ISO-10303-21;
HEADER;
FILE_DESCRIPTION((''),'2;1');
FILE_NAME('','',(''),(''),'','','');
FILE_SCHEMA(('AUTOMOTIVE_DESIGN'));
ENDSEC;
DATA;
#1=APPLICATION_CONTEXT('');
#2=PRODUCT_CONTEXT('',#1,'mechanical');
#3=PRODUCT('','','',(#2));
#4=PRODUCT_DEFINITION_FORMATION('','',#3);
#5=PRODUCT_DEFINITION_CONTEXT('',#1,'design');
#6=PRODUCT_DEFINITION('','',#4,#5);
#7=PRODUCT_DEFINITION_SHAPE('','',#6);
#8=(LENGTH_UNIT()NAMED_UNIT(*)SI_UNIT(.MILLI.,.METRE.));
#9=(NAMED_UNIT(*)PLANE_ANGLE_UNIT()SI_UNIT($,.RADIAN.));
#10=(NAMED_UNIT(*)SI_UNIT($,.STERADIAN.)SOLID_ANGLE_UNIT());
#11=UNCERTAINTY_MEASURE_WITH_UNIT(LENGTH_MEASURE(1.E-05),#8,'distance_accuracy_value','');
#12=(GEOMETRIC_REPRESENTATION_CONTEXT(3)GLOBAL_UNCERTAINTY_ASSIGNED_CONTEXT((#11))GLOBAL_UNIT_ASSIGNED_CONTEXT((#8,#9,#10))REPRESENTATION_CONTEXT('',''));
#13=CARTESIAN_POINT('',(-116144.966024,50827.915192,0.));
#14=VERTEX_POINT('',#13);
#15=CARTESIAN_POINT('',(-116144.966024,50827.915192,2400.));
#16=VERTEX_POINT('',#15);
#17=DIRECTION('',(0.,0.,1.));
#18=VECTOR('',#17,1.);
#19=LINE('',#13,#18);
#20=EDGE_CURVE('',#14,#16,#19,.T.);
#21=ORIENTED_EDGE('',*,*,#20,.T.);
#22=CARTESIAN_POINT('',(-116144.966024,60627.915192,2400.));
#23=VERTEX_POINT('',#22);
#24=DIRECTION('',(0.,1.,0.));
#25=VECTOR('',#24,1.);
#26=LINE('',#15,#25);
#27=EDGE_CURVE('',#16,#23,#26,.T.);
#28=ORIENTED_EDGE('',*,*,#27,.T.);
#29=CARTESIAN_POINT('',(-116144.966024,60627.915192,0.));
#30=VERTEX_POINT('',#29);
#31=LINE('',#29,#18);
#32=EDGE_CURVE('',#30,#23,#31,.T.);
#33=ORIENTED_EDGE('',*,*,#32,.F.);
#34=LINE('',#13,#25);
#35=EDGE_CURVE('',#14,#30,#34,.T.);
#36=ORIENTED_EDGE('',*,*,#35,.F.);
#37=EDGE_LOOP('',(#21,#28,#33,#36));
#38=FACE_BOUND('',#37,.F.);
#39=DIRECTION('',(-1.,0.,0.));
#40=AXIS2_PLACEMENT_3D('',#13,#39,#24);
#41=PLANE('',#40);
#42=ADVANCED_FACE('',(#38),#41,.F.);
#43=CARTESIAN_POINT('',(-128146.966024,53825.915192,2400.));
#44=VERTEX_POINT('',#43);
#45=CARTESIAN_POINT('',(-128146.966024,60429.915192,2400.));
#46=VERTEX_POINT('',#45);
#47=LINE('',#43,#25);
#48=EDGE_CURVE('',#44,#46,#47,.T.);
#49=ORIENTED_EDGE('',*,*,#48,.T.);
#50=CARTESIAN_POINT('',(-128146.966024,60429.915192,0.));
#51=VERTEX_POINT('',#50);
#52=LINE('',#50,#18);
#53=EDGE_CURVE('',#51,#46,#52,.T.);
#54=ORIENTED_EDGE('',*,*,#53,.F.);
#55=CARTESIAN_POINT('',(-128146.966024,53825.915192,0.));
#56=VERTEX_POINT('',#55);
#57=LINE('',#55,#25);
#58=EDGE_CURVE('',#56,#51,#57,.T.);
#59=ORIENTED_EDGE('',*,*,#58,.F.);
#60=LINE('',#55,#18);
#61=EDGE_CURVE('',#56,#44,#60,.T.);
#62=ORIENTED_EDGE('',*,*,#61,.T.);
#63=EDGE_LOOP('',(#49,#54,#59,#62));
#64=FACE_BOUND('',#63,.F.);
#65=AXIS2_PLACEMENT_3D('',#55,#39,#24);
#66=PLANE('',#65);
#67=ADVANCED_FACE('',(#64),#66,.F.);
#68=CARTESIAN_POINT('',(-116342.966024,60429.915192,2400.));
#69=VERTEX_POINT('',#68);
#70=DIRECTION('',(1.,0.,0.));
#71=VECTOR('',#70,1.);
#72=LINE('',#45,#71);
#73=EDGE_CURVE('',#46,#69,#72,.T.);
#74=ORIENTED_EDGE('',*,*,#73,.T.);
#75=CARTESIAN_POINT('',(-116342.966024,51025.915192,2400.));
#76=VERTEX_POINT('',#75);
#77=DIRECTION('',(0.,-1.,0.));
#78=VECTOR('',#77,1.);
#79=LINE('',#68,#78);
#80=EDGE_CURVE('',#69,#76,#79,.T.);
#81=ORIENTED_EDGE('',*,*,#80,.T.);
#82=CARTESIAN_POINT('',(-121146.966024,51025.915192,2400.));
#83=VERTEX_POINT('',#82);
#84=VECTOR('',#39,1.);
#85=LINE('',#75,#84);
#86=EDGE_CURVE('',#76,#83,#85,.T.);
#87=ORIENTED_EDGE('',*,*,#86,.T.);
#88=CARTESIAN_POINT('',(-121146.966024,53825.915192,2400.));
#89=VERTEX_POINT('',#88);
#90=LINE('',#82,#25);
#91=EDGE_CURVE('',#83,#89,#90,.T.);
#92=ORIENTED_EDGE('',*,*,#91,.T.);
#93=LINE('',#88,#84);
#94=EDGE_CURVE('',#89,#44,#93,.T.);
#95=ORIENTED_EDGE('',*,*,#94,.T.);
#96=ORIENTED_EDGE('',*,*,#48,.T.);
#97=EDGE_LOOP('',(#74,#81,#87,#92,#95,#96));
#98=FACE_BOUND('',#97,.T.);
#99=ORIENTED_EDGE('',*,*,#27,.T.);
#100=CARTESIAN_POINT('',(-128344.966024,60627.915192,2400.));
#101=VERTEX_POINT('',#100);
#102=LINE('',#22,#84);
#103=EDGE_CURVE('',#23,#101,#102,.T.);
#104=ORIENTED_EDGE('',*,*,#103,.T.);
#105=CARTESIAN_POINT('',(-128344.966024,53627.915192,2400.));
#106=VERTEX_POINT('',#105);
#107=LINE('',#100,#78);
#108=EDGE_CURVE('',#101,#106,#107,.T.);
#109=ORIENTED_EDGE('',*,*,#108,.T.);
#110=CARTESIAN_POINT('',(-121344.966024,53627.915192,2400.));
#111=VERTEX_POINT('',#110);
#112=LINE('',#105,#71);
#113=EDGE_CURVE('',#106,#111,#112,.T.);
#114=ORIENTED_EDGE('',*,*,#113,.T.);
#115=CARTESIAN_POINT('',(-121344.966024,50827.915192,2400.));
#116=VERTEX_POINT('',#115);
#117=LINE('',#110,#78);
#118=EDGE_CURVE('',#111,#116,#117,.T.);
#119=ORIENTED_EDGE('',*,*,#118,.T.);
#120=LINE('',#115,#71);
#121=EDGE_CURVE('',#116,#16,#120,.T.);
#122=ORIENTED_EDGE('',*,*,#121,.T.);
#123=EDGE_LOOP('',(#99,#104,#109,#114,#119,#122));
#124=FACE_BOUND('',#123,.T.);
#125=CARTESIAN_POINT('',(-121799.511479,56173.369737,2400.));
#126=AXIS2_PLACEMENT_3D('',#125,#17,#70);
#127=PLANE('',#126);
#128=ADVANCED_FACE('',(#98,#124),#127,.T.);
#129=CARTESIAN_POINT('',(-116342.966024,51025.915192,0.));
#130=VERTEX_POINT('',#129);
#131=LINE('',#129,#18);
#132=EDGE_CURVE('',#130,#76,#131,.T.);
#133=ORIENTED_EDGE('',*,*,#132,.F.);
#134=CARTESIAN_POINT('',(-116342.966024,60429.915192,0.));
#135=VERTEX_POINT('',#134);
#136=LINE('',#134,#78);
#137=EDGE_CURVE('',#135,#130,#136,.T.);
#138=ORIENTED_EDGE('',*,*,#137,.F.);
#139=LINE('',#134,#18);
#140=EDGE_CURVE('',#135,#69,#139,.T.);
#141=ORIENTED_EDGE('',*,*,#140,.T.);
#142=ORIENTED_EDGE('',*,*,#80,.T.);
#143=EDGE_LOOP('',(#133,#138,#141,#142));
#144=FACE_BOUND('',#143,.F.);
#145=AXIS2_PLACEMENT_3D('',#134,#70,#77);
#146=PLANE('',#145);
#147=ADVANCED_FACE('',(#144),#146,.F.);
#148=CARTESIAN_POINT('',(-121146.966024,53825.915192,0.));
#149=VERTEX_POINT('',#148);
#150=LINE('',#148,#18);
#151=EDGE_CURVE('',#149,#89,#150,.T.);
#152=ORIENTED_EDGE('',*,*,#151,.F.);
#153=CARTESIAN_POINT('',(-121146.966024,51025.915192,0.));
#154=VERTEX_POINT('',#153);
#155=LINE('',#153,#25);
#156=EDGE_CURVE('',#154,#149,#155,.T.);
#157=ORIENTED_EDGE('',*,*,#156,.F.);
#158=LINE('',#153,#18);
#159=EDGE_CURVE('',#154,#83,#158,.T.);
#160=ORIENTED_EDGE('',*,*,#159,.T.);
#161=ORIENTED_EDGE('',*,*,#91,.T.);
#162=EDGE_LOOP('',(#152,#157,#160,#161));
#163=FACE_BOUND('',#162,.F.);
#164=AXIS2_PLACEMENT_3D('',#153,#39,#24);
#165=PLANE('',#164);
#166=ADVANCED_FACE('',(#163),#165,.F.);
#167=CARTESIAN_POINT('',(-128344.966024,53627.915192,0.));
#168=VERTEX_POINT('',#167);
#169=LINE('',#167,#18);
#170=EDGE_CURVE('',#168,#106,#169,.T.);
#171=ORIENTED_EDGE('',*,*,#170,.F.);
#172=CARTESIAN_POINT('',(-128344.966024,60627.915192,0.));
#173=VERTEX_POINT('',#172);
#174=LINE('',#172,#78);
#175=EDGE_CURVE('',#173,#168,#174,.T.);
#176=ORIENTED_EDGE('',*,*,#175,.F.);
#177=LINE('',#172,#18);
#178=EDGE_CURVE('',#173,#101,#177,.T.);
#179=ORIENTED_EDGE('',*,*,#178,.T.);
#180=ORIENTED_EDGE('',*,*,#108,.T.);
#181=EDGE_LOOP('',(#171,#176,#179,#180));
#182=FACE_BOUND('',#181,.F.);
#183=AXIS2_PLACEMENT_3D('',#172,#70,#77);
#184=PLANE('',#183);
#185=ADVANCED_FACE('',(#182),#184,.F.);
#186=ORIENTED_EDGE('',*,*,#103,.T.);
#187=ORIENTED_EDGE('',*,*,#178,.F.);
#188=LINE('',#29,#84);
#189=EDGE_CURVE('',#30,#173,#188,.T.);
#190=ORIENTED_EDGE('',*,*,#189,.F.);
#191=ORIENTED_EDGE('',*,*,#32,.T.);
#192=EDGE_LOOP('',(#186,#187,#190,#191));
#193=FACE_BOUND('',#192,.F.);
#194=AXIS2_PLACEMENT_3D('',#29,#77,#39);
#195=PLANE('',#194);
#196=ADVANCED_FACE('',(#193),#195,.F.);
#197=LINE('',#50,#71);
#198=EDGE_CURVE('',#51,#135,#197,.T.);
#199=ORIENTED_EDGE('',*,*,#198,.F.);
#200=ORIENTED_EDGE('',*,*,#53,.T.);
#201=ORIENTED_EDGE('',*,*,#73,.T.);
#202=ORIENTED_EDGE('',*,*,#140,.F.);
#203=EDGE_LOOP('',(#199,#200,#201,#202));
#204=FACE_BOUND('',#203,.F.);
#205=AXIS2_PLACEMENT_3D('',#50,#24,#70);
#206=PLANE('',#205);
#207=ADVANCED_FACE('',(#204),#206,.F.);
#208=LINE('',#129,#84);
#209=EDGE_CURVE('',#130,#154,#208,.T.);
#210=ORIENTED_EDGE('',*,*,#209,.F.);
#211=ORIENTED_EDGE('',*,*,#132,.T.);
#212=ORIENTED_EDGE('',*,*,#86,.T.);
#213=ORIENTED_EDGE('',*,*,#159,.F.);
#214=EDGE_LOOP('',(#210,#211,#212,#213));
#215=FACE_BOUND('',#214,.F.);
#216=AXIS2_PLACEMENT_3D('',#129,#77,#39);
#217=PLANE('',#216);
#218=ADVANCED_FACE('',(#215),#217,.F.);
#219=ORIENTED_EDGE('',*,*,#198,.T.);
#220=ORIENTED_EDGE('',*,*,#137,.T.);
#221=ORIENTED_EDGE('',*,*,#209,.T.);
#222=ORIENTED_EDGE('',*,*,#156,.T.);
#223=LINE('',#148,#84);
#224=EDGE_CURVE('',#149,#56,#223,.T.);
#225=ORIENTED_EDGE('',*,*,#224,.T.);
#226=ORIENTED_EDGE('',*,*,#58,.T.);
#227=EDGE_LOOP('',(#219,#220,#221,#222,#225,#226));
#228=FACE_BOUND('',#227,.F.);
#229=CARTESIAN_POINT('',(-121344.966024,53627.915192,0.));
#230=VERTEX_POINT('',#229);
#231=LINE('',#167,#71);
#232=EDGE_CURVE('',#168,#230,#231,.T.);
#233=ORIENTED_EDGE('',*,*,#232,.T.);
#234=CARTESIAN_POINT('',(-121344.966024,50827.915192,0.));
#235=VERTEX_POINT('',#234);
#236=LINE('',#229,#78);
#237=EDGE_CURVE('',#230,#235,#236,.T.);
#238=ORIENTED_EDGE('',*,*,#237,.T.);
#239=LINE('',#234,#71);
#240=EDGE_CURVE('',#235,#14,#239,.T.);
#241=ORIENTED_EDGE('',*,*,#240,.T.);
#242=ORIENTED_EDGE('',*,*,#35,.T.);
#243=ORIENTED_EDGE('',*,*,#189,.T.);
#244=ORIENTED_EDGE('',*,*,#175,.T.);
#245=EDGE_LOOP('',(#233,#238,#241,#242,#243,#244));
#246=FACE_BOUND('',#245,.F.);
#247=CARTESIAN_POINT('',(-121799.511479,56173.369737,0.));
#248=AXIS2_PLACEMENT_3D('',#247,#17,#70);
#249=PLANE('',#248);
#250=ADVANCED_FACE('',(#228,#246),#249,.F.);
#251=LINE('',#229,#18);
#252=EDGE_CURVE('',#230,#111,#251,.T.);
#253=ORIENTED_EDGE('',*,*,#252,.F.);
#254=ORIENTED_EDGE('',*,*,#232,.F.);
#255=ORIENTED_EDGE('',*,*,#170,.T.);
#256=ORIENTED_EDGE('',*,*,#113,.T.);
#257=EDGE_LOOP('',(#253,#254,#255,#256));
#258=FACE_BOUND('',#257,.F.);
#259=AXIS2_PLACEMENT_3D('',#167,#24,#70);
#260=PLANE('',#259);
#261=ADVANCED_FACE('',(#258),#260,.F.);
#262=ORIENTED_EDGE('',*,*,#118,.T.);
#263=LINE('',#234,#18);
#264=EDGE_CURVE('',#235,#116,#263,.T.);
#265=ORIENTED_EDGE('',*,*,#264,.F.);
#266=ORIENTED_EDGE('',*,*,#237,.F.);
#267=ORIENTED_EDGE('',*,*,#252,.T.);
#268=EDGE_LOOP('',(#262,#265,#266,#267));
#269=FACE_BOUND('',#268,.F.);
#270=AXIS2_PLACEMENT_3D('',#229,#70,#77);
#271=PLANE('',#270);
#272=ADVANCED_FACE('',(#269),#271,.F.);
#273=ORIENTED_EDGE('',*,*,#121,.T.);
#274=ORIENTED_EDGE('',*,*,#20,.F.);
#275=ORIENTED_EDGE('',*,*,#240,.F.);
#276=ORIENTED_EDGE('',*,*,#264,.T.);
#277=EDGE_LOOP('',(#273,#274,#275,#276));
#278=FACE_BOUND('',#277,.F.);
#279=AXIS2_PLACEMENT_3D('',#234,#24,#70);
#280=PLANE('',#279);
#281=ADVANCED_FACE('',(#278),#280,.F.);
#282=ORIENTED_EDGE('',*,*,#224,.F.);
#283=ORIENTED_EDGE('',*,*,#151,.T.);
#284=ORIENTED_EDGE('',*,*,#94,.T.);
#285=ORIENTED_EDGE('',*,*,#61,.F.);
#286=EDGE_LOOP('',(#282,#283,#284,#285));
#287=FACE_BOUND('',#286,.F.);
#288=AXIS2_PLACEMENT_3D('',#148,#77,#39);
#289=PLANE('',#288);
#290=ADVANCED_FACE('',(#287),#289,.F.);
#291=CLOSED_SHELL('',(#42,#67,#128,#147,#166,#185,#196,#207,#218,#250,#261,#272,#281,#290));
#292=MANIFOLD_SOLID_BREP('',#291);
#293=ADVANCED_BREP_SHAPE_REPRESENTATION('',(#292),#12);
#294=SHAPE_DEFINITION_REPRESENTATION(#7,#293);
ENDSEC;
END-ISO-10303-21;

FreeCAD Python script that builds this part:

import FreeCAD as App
import Part
import Sketcher
from FreeCAD import Vector

doc = App.newDocument("Part")
params = doc.addObject("Spreadsheet::Sheet", "Params")
for row, (alias, value) in enumerate([
    ("sketch1_width", "12200 mm"),
    ("sketch1_width2", "7000 mm"),
    ("sketch1_width3", "11804 mm"),
    ("sketch1_height", "2800 mm"),
    ("sketch1_height2", "6604 mm"),
    ("pad1_length", "2400 mm"),
], start=1):
    params.set(f"A{row}", alias)
    params.set(f"B{row}", "=" + value)
    params.setAlias(f"B{row}", alias)

body = doc.addObject("PartDesign::Body", "Body")

sketch1 = doc.addObject("Sketcher::SketchObject", "Sketch")
body.addObject(sketch1)
sketch1.AttachmentSupport = (doc.XY_Plane, [""])
sketch1.MapMode = "FlatFace"
sketch1.addGeometry(Part.LineSegment(Vector(-116144.966024, 60627.915192, 0), Vector(-128344.966024, 60627.915192, 0)), False)
sketch1.addGeometry(Part.LineSegment(Vector(-128344.966024, 60627.915192, 0), Vector(-128344.966024, 53627.915192, 0)), False)
sketch1.addGeometry(Part.LineSegment(Vector(-128344.966024, 53627.915192, 0), Vector(-121344.966024, 53627.915192, 0)), False)
sketch1.addGeometry(Part.LineSegment(Vector(-121344.966024, 53627.915192, 0), Vector(-121344.966024, 50827.915192, 0)), False)
sketch1.addGeometry(Part.LineSegment(Vector(-121344.966024, 50827.915192, 0), Vector(-116144.966024, 50827.915192, 0)), False)
sketch1.addGeometry(Part.LineSegment(Vector(-116144.966024, 50827.915192, 0), Vector(-116144.966024, 60627.915192, 0)), False)
sketch1.addGeometry(Part.LineSegment(Vector(-121146.966024, 51025.915192, 0), Vector(-121146.966024, 53825.915192, 0)), False)
sketch1.addGeometry(Part.LineSegment(Vector(-121146.966024, 53825.915192, 0), Vector(-128146.966024, 53825.915192, 0)), False)
sketch1.addGeometry(Part.LineSegment(Vector(-128146.966024, 53825.915192, 0), Vector(-128146.966024, 60429.915192, 0)), False)
sketch1.addGeometry(Part.LineSegment(Vector(-128146.966024, 60429.915192, 0), Vector(-116342.966024, 60429.915192, 0)), False)
sketch1.addGeometry(Part.LineSegment(Vector(-116342.966024, 60429.915192, 0), Vector(-116342.966024, 51025.915192, 0)), False)
sketch1.addGeometry(Part.LineSegment(Vector(-116342.966024, 51025.915192, 0), Vector(-121146.966024, 51025.915192, 0)), False)
sketch1.addConstraint(Sketcher.Constraint("Coincident", 0, 2, 1, 1))
sketch1.addConstraint(Sketcher.Constraint("Coincident", 1, 2, 2, 1))
sketch1.addConstraint(Sketcher.Constraint("Coincident", 2, 2, 3, 1))
sketch1.addConstraint(Sketcher.Constraint("Coincident", 3, 2, 4, 1))
sketch1.addConstraint(Sketcher.Constraint("Coincident", 4, 2, 5, 1))
sketch1.addConstraint(Sketcher.Constraint("Coincident", 5, 2, 0, 1))
sketch1.addConstraint(Sketcher.Constraint("Coincident", 6, 2, 7, 1))
sketch1.addConstraint(Sketcher.Constraint("Coincident", 7, 2, 8, 1))
sketch1.addConstraint(Sketcher.Constraint("Coincident", 8, 2, 9, 1))
sketch1.addConstraint(Sketcher.Constraint("Coincident", 9, 2, 10, 1))
sketch1.addConstraint(Sketcher.Constraint("Coincident", 10, 2, 11, 1))
sketch1.addConstraint(Sketcher.Constraint("Coincident", 11, 2, 6, 1))
sketch1.addConstraint(Sketcher.Constraint("Horizontal", 0))
sketch1.addConstraint(Sketcher.Constraint("Vertical", 1))
sketch1.addConstraint(Sketcher.Constraint("Horizontal", 2))
sketch1.addConstraint(Sketcher.Constraint("Vertical", 3))
sketch1.addConstraint(Sketcher.Constraint("Horizontal", 4))
sketch1.addConstraint(Sketcher.Constraint("Vertical", 5))
sketch1.addConstraint(Sketcher.Constraint("Vertical", 6))
sketch1.addConstraint(Sketcher.Constraint("Horizontal", 7))
sketch1.addConstraint(Sketcher.Constraint("Vertical", 8))
sketch1.addConstraint(Sketcher.Constraint("Horizontal", 9))
sketch1.addConstraint(Sketcher.Constraint("Vertical", 10))
sketch1.addConstraint(Sketcher.Constraint("Horizontal", 11))
sketch1.addConstraint(Sketcher.Constraint("Equal", 2, 7))
sketch1.addConstraint(Sketcher.Constraint("Equal", 7, 1))
sketch1.addConstraint(Sketcher.Constraint("Equal", 3, 6))
sketch1.addConstraint(Sketcher.Constraint("DistanceX", 0, 2, 0, 1, 12200.0))
sketch1.addConstraint(Sketcher.Constraint("DistanceX", 2, 1, 2, 2, 7000.0))
sketch1.addConstraint(Sketcher.Constraint("DistanceX", 9, 1, 9, 2, 11804.0))
sketch1.addConstraint(Sketcher.Constraint("DistanceY", 3, 2, 3, 1, 2800.0))
sketch1.addConstraint(Sketcher.Constraint("DistanceY", 8, 1, 8, 2, 6604.0))
sketch1.addConstraint(Sketcher.Constraint("DistanceX", 2, 2, 6, 2, 198.0))
sketch1.addConstraint(Sketcher.Constraint("DistanceY", 2, 2, 6, 2, 198.0))
sketch1.addConstraint(Sketcher.Constraint("DistanceX", 0, 2, -1, 1, 128344.966024))
sketch1.addConstraint(Sketcher.Constraint("DistanceY", -1, 1, 0, 2, 60627.915192))
sketch1.setExpression("Constraints[27]", "Params.sketch1_width")
sketch1.setExpression("Constraints[28]", "Params.sketch1_width2")
sketch1.setExpression("Constraints[29]", "Params.sketch1_width3")
sketch1.setExpression("Constraints[30]", "Params.sketch1_height")
sketch1.setExpression("Constraints[31]", "Params.sketch1_height2")
pad1 = doc.addObject("PartDesign::Pad", "Pad")
body.addObject(pad1)
pad1.Profile = sketch1
pad1.setExpression("Length", "Params.pad1_length")

doc.recompute()
